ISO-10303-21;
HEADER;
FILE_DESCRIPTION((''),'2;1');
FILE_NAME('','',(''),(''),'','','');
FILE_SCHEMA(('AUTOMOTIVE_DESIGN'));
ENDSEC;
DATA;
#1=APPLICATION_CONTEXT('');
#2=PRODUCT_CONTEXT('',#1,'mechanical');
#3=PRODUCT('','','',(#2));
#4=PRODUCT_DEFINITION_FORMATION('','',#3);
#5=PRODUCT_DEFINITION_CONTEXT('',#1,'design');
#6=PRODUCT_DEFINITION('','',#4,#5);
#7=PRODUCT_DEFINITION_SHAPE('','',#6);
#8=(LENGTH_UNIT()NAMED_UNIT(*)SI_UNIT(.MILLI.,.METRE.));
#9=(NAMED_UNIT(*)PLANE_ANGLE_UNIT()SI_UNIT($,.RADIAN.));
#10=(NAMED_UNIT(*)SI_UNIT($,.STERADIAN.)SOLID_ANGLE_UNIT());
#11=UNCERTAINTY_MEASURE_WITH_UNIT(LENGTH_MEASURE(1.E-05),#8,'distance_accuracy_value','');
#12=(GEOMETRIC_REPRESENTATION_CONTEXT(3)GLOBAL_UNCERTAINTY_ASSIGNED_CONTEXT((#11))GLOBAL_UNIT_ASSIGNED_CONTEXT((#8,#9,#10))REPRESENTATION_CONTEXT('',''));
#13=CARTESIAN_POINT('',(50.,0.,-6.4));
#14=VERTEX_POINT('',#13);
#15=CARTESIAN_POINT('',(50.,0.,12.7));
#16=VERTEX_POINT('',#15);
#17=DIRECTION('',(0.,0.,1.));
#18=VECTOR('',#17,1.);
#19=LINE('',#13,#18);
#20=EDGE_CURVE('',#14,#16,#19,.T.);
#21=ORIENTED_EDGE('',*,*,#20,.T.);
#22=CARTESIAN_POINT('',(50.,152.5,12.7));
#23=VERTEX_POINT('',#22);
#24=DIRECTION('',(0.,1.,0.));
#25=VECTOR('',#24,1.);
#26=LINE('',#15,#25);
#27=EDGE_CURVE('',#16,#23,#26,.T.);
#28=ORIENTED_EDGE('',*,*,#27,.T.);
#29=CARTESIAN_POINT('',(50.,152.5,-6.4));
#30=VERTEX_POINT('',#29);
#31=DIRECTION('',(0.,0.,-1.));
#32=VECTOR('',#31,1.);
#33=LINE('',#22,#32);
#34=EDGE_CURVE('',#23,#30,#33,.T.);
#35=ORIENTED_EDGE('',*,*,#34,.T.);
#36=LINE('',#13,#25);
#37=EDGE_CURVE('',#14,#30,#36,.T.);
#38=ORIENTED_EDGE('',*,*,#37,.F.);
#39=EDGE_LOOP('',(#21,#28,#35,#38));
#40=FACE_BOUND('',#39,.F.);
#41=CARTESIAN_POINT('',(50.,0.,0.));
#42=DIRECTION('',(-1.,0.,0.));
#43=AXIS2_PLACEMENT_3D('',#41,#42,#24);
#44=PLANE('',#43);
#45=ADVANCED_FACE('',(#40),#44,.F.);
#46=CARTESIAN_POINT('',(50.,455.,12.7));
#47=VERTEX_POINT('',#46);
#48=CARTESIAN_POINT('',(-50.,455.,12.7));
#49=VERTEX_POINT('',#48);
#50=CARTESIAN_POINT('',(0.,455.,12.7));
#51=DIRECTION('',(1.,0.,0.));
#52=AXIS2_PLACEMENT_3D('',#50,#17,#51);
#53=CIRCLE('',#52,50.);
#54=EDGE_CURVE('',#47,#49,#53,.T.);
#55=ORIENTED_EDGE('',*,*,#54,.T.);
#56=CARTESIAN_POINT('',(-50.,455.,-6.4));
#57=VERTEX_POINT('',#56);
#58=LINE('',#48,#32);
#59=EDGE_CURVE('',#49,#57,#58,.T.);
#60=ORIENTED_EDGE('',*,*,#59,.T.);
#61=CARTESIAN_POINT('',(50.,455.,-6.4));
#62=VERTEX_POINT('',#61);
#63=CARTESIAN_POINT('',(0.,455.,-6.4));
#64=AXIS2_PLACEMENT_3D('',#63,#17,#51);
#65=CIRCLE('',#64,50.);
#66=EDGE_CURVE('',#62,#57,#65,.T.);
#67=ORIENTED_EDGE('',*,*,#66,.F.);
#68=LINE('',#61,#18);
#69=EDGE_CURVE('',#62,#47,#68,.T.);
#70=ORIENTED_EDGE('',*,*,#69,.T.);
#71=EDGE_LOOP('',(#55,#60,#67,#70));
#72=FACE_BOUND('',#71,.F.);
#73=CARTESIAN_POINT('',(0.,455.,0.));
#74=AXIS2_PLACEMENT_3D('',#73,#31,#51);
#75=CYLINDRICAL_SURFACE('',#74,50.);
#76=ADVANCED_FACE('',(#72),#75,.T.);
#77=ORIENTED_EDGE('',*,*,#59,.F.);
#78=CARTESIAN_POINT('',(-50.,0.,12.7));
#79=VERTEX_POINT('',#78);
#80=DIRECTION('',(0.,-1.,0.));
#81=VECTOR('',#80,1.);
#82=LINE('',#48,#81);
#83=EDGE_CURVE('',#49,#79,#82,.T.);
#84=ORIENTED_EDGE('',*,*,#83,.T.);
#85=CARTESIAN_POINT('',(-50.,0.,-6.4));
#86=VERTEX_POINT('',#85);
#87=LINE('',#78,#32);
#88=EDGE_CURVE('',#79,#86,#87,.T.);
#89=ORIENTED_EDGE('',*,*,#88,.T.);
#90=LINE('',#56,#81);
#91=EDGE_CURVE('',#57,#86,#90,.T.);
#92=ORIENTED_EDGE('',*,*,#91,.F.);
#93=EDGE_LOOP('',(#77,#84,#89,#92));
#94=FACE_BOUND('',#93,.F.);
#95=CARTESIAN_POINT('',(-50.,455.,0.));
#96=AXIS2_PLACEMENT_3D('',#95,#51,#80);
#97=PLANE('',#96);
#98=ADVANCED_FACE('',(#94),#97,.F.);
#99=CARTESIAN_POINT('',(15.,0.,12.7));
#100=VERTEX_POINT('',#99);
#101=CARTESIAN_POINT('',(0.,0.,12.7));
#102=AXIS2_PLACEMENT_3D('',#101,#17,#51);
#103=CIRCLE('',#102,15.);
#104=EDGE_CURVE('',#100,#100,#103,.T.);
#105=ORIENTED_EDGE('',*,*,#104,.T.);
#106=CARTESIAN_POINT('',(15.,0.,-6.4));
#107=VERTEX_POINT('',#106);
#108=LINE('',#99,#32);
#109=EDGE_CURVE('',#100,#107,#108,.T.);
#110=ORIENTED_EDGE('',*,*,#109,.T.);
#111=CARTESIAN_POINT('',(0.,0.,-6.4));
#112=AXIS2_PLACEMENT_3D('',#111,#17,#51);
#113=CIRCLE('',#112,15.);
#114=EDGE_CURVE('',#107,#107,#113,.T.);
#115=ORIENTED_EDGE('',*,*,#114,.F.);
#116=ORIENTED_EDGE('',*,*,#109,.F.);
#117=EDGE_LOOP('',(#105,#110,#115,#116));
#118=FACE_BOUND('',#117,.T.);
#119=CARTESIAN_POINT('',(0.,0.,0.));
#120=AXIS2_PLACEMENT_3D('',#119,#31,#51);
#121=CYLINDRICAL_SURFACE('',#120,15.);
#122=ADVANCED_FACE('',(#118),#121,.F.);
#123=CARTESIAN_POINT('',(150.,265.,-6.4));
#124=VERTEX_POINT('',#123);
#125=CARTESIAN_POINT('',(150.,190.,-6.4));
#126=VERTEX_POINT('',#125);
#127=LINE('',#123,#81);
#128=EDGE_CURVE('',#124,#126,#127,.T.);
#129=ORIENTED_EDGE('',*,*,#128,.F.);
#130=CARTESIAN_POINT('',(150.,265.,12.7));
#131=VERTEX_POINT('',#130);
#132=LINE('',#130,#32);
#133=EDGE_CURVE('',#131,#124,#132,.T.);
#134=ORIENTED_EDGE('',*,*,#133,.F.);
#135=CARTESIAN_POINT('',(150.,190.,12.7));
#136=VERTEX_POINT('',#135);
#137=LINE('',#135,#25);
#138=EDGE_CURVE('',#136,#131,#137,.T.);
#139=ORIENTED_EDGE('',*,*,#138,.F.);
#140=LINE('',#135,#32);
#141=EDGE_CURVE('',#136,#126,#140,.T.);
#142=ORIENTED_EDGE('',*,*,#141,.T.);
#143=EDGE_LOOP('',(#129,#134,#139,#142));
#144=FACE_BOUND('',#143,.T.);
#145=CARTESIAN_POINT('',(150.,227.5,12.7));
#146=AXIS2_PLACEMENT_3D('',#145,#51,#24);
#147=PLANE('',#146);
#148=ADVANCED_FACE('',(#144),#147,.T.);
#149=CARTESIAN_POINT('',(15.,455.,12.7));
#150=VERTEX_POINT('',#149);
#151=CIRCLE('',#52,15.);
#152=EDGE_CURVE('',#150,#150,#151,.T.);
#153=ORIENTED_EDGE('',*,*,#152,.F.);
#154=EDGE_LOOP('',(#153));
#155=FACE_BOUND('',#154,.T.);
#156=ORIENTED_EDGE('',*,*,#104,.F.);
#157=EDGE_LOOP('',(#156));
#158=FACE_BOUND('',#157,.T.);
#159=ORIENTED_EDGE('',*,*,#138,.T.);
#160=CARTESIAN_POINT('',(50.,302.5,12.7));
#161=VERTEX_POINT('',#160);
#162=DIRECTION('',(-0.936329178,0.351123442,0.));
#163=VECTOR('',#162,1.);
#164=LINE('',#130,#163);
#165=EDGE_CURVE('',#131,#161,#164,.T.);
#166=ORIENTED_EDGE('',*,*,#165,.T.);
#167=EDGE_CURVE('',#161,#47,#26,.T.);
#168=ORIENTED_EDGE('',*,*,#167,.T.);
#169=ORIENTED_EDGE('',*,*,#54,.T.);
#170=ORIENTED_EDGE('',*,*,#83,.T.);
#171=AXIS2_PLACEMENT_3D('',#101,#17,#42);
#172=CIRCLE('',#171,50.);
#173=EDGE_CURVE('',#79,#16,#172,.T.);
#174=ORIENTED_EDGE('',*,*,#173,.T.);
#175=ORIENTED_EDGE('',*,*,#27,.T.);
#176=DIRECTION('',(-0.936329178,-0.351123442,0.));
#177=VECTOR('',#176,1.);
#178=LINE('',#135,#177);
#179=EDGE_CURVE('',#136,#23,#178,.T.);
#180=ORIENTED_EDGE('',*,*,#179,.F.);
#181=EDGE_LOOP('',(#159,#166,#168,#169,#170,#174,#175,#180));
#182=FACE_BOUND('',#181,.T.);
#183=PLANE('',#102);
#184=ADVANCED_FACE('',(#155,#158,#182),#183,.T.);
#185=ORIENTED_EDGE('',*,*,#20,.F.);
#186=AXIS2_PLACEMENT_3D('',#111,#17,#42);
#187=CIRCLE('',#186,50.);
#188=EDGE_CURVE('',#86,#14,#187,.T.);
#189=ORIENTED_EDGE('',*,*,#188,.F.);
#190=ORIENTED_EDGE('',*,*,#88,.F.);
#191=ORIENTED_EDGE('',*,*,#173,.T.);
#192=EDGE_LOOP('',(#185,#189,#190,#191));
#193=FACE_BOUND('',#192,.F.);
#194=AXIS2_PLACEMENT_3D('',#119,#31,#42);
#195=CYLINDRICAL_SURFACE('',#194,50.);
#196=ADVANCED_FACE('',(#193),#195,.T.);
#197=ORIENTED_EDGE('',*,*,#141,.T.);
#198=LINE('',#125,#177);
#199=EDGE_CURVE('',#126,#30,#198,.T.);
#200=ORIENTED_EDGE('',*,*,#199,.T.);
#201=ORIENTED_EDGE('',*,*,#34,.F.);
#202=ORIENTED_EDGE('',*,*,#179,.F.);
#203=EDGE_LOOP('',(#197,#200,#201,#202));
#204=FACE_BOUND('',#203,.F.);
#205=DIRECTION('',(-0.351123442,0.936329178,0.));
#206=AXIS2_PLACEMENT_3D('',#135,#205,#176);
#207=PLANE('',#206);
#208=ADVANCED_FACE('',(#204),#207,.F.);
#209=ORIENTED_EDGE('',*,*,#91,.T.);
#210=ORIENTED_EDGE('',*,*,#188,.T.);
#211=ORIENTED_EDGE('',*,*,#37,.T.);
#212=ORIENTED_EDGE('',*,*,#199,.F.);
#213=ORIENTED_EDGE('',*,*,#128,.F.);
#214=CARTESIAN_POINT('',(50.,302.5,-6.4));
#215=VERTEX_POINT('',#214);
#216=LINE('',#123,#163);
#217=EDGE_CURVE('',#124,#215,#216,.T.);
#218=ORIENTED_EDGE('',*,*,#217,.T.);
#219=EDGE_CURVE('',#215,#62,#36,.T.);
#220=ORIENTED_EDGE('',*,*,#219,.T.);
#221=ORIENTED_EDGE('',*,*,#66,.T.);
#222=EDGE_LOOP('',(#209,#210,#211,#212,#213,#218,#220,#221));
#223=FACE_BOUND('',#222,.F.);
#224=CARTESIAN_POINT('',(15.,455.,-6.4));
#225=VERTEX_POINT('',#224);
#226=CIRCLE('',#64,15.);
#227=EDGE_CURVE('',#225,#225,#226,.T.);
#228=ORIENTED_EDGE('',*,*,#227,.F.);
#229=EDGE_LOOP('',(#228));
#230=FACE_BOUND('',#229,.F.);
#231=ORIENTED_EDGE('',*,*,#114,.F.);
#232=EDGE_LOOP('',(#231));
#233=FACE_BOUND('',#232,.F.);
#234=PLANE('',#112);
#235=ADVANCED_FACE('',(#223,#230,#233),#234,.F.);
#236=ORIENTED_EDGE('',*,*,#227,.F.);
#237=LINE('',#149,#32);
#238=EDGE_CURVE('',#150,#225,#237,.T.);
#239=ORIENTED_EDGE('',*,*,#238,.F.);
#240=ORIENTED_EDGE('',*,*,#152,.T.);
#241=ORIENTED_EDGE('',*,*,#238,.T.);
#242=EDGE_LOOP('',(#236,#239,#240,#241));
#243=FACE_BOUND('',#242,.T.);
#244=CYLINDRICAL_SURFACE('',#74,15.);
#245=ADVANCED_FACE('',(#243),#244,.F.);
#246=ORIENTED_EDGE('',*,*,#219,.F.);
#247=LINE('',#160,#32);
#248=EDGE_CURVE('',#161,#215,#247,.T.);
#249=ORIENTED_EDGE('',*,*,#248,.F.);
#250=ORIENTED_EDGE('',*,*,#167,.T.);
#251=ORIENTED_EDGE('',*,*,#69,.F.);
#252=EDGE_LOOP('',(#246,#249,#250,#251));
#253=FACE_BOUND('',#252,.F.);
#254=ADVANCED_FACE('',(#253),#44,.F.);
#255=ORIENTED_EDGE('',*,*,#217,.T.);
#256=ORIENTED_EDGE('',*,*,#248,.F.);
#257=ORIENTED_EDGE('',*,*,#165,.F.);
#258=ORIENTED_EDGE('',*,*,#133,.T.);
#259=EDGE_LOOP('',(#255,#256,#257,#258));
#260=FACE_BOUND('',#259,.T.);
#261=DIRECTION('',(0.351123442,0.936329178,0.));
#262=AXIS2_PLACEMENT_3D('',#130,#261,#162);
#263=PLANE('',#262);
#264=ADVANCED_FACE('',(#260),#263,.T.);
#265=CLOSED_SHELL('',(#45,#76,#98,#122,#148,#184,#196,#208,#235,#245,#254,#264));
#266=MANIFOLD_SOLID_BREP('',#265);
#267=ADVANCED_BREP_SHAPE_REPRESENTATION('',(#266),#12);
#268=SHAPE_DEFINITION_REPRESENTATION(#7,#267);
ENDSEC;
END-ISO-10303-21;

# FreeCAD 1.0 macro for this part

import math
import FreeCAD as App
import Part
import Sketcher
from FreeCAD import Vector


def add_polygon(sketch, points):
    """Adds a closed chain of lines whose ends are joined by coincident constraints."""
    first, n = sketch.GeometryCount, len(points)
    for a, b in zip(points, points[1:] + points[:1]):
        sketch.addGeometry(Part.LineSegment(App.Vector(*a, 0), App.Vector(*b, 0)), False)
    for i in range(n):
        sketch.addConstraint(Sketcher.Constraint("Coincident", first + i, 2, first + (i + 1) % n, 1))

doc = App.newDocument("Part")
params = doc.addObject("Spreadsheet::Sheet", "Params")
for row, (alias, value) in enumerate([
    ("sketch1_diameter", "30 mm"),
    ("sketch1_height", "455 mm"),
    ("sketch1_radius", "50 mm"),
    ("pad1_length", "12.7 mm"),
    ("pad1_length2", "6.4 mm"),
    ("sketch2_height", "150 mm"),
    ("sketch2_height2", "75 mm"),
    ("pad2_length", "19.1 mm"),
], start=1):
    params.set(f"A{row}", alias)
    params.set(f"B{row}", "=" + value)
    params.setAlias(f"B{row}", alias)

body = doc.addObject("PartDesign::Body", "Body")

sketch1 = body.newObject("Sketcher::SketchObject", "Sketch")
sketch1.AttachmentSupport = (doc.getObject("XY_Plane"), [""])
sketch1.MapMode = "FlatFace"
sketch1.addGeometry([
    Part.ArcOfCircle(Part.Circle(Vector(0, 0, 0), Vector(0, 0, 1), 50), math.radians(180), math.radians(360)),
    Part.LineSegment(Vector(50, 0, 0), Vector(50, 455, 0)),
    Part.ArcOfCircle(Part.Circle(Vector(0, 455, 0), Vector(0, 0, 1), 50), math.radians(0), math.radians(180)),
    Part.LineSegment(Vector(-50, 455, 0), Vector(-50, 0, 0)),
    Part.Circle(Vector(0, 0, 0), Vector(0, 0, 1), 15),
    Part.Circle(Vector(0, 455, 0), Vector(0, 0, 1), 15),
], False)
sketch1.addConstraint([
    Sketcher.Constraint("Tangent", 0, 2, 1, 1),
    Sketcher.Constraint("Tangent", 1, 2, 2, 1),
    Sketcher.Constraint("Tangent", 2, 2, 3, 1),
    Sketcher.Constraint("Tangent", 3, 2, 0, 1),
    Sketcher.Constraint("Vertical", 1),
    Sketcher.Constraint("Vertical", 3),
    Sketcher.Constraint("Coincident", 0, 3, -1, 1),
    Sketcher.Constraint("Coincident", 4, 3, -1, 1),
    Sketcher.Constraint("Coincident", 5, 3, 2, 3),
    Sketcher.Constraint("Equal", 4, 5),
    Sketcher.Constraint("Diameter", 4, 30.0),
    Sketcher.Constraint("DistanceY", 1, 1, 1, 2, 455.0),
    Sketcher.Constraint("Radius", 0, 50.0),
])
sketch1.setExpression("Constraints[10]", "Params.sketch1_diameter")
sketch1.setExpression("Constraints[11]", "Params.sketch1_height")
sketch1.setExpression("Constraints[12]", "Params.sketch1_radius")
pad1 = body.newObject("PartDesign::Pad", "Pad")
pad1.Profile = sketch1
pad1.Type = "TwoLengths"
pad1.setExpression("Length", "Params.pad1_length")
pad1.setExpression("Length2", "Params.pad1_length2")

sketch2 = body.newObject("Sketcher::SketchObject", "Sketch001")
sketch2.AttachmentSupport = (doc.getObject("XY_Plane"), [""])
sketch2.MapMode = "FlatFace"
sketch2.AttachmentOffset = App.Placement(Vector(0, 0, 12.7), App.Rotation())
add_polygon(sketch2, [(50, 302), (50, 152), (150, 190), (150, 265)])
sketch2.addConstraint([
    Sketcher.Constraint("Vertical", 0),
    Sketcher.Constraint("Vertical", 2),
    Sketcher.Constraint("Equal", 1, 3),
    Sketcher.Constraint("DistanceY", 0, 2, 0, 1, 150.0),
    Sketcher.Constraint("DistanceY", 2, 1, 2, 2, 75.0),
    Sketcher.Constraint("DistanceX", -1, 1, 1, 2, 150.0),
    Sketcher.Constraint("DistanceX", 0, 2, 1, 2, 100.0),
    Sketcher.Constraint("DistanceY", -1, 1, 0, 2, 152.5),
])
sketch2.setExpression("Constraints[7]", "Params.sketch2_height")
sketch2.setExpression("Constraints[8]", "Params.sketch2_height2")
pad2 = body.newObject("PartDesign::Pad", "Pad001")
pad2.Profile = sketch2
pad2.setExpression("Length", "Params.pad2_length")
pad2.Reversed = True

doc.recompute()
